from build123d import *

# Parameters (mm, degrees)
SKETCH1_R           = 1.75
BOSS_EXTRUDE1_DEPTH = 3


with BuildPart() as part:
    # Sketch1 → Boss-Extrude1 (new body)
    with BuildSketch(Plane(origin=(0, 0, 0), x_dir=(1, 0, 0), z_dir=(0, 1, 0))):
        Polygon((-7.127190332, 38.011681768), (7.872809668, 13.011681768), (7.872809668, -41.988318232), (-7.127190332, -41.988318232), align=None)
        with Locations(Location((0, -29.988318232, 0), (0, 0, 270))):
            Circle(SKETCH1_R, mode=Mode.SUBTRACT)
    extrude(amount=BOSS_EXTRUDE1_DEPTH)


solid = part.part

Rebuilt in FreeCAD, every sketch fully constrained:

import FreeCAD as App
import Part
import Sketcher
Q = App.Units.Quantity

doc = App.newDocument("Part")
body = doc.addObject("PartDesign::Body", "Body")

sketch1 = doc.addObject("Sketcher::SketchObject", "Sketch")
body.addObject(sketch1)
sketch1.AttachmentSupport = (doc.XZ_Plane, [""])
sketch1.MapMode = "FlatFace"
sketch1.addGeometry([
    Part.LineSegment(App.Vector(7.87281, -13.011682, 0), App.Vector(-7.12719, -38.011682, 0)),
    Part.LineSegment(App.Vector(-7.12719, -38.011682, 0), App.Vector(-7.12719, 41.988318, 0)),
    Part.LineSegment(App.Vector(-7.12719, 41.988318, 0), App.Vector(7.87281, 41.988318, 0)),
    Part.LineSegment(App.Vector(7.87281, 41.988318, 0), App.Vector(7.87281, -13.011682, 0)),
    Part.Circle(App.Vector(0, 29.988318, 0), App.Vector(0, 0, 1), 1.75),
], False)
sketch1.addConstraint([
    Sketcher.Constraint("Coincident", 0, 2, 1, 1),
    Sketcher.Constraint("Coincident", 1, 2, 2, 1),
    Sketcher.Constraint("Coincident", 2, 2, 3, 1),
    Sketcher.Constraint("Coincident", 3, 2, 0, 1),
    Sketcher.Constraint("Vertical", 1),
    Sketcher.Constraint("Horizontal", 2),
    Sketcher.Constraint("Vertical", 3),
    Sketcher.Constraint("PointOnObject", 4, 3, -2),
    Sketcher.Constraint("Diameter", 4, Q("3.5 mm")),
    Sketcher.Constraint("DistanceX", 2, 1, 2, 2, Q("15 mm")),
    Sketcher.Constraint("DistanceY", 1, 1, 1, 2, Q("80 mm")),
    Sketcher.Constraint("DistanceY", 3, 2, 3, 1, Q("55 mm")),
    Sketcher.Constraint("DistanceY", 0, 2, 4, 3, Q("68 mm")),
    Sketcher.Constraint("DistanceY", -1, 1, 4, 3, Q("29.988318 mm")),
    Sketcher.Constraint("DistanceX", 0, 2, -1, 1, Q("7.12719 mm")),
])
pad1 = doc.addObject("PartDesign::Pad", "Pad")
body.addObject(pad1)
pad1.Profile = sketch1
pad1.Length = 3
pad1.Reversed = True

doc.recompute()
